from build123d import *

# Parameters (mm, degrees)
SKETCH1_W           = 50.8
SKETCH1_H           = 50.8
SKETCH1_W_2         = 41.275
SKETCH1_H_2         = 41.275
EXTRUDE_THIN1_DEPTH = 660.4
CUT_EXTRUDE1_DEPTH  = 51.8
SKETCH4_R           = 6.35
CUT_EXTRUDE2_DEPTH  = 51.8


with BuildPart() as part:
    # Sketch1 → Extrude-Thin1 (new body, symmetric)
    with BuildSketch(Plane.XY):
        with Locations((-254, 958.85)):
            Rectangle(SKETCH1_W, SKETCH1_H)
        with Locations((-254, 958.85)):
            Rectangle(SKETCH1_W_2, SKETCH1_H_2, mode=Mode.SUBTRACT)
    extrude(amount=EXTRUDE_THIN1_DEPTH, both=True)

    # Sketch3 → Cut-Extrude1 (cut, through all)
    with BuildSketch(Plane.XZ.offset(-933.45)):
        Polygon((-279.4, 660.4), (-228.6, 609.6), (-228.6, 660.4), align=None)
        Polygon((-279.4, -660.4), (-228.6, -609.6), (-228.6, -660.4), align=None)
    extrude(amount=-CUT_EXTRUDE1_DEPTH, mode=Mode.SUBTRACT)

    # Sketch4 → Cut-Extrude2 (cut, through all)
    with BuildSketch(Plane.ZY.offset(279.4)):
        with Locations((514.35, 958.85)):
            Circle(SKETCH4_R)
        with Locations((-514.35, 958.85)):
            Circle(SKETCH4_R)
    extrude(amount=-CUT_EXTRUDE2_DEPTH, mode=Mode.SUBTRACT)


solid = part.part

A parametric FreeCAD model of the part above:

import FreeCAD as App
import Part
import Sketcher
from FreeCAD import Vector
Q = App.Units.Quantity


def add_polygon(sketch, points):
    """Adds a closed chain of lines whose ends are joined by coincident constraints."""
    first, n = sketch.GeometryCount, len(points)
    for a, b in zip(points, points[1:] + points[:1]):
        sketch.addGeometry(Part.LineSegment(App.Vector(*a, 0), App.Vector(*b, 0)), False)
    for i in range(n):
        sketch.addConstraint(Sketcher.Constraint("Coincident", first + i, 2, first + (i + 1) % n, 1))

doc = App.newDocument("Part")
body = doc.addObject("PartDesign::Body", "Body")

# Sketch on XY plane
sketch1 = body.newObject("Sketcher::SketchObject", "Sketch")
sketch1.AttachmentSupport = (doc.getObject("XY_Plane"), [""])
sketch1.MapMode = "FlatFace"
add_polygon(sketch1, [(-279, 984), (-279, 933), (-229, 933), (-229, 984)])  # lines 0-3
add_polygon(sketch1, [(-233, 938), (-275, 938), (-275, 979), (-233, 979)])  # lines 4-7
sketch1.addConstraint([
    Sketcher.Constraint("Vertical", 0),
    Sketcher.Constraint("Horizontal", 1),
    Sketcher.Constraint("Vertical", 2),
    Sketcher.Constraint("Horizontal", 3),
    Sketcher.Constraint("Horizontal", 4),
    Sketcher.Constraint("Vertical", 5),
    Sketcher.Constraint("Horizontal", 6),
    Sketcher.Constraint("Vertical", 7),
    Sketcher.Constraint("Equal", 3, 0),
    Sketcher.Constraint("Equal", 6, 5),
    Sketcher.Constraint("DistanceX", 1, 1, 1, 2, Q("2 in")),
    Sketcher.Constraint("DistanceX", 0, 2, -1, 1, Q("11 in")),
    Sketcher.Constraint("DistanceX", 4, 2, 4, 1, Q("1.625 in")),
    Sketcher.Constraint("DistanceY", -1, 1, 0, 2, Q("36.75 in")),
    Sketcher.Constraint("DistanceX", 4, 2, -1, 1, Q("10.8125 in")),
    Sketcher.Constraint("DistanceY", -1, 1, 4, 2, Q("36.9375 in")),
])
pad1 = body.newObject("PartDesign::Pad", "Pad")
pad1.Profile = sketch1
pad1.Length = Q("52 in")
pad1.Midplane = True

# Sketch on XZ plane
sketch2 = body.newObject("Sketcher::SketchObject", "Sketch001")
sketch2.AttachmentSupport = (doc.getObject("XZ_Plane"), [""])
sketch2.MapMode = "FlatFace"
sketch2.AttachmentOffset = App.Placement(Vector(0, 0, -36.75 * 25.4), App.Rotation())
add_polygon(sketch2, [(-279, 660), (-229, 610), (-229, 660)])  # lines 0-2
add_polygon(sketch2, [(-229, -610), (-279, -660), (-229, -660)])  # lines 3-5
sketch2.addConstraint([
    Sketcher.Constraint("Vertical", 1),
    Sketcher.Constraint("Horizontal", 2),
    Sketcher.Constraint("Horizontal", 4),
    Sketcher.Constraint("Vertical", 5),
    Sketcher.Constraint("Symmetric", 2, 2, 3, 2, -1),
    Sketcher.Constraint("Symmetric", 0, 2, 5, 2, -1),
    Sketcher.Constraint("Perpendicular", 0, 3),
    Sketcher.Constraint("DistanceX", 2, 2, 2, 1, Q("2 in")),
    Sketcher.Constraint("DistanceX", 0, 2, -1, 1, Q("9 in")),
    Sketcher.Constraint("DistanceY", -1, 1, 0, 2, Q("24 in")),
])
pocket1 = body.newObject("PartDesign::Pocket", "Pocket")
pocket1.Profile = sketch2
pocket1.Type = "ThroughAll"

# Sketch on YZ plane
sketch3 = body.newObject("Sketcher::SketchObject", "Sketch002")
sketch3.AttachmentSupport = (doc.getObject("YZ_Plane"), [""])
sketch3.MapMode = "FlatFace"
sketch3.AttachmentOffset = App.Placement(Vector(0, 0, -11 * 25.4), App.Rotation())
sketch3.addGeometry([
    Part.Circle(Vector(959, 514, 0), Vector(0, 0, 1), 6),
    Part.Circle(Vector(959, -514, 0), Vector(0, 0, 1), 6),
], False)
sketch3.addConstraint([
    Sketcher.Constraint("Equal", 0, 1),
    Sketcher.Constraint("Symmetric", 0, 3, 1, 3, -1),
    Sketcher.Constraint("Diameter", 0, Q("0.5 in")),
    Sketcher.Constraint("DistanceY", 1, 3, 0, 3, Q("40.5 in")),
    Sketcher.Constraint("DistanceX", -1, 1, 0, 3, Q("37.75 in")),
])
pocket2 = body.newObject("PartDesign::Pocket", "Pocket001")
pocket2.Profile = sketch3
pocket2.Type = "ThroughAll"
pocket2.Reversed = True

doc.recompute()
